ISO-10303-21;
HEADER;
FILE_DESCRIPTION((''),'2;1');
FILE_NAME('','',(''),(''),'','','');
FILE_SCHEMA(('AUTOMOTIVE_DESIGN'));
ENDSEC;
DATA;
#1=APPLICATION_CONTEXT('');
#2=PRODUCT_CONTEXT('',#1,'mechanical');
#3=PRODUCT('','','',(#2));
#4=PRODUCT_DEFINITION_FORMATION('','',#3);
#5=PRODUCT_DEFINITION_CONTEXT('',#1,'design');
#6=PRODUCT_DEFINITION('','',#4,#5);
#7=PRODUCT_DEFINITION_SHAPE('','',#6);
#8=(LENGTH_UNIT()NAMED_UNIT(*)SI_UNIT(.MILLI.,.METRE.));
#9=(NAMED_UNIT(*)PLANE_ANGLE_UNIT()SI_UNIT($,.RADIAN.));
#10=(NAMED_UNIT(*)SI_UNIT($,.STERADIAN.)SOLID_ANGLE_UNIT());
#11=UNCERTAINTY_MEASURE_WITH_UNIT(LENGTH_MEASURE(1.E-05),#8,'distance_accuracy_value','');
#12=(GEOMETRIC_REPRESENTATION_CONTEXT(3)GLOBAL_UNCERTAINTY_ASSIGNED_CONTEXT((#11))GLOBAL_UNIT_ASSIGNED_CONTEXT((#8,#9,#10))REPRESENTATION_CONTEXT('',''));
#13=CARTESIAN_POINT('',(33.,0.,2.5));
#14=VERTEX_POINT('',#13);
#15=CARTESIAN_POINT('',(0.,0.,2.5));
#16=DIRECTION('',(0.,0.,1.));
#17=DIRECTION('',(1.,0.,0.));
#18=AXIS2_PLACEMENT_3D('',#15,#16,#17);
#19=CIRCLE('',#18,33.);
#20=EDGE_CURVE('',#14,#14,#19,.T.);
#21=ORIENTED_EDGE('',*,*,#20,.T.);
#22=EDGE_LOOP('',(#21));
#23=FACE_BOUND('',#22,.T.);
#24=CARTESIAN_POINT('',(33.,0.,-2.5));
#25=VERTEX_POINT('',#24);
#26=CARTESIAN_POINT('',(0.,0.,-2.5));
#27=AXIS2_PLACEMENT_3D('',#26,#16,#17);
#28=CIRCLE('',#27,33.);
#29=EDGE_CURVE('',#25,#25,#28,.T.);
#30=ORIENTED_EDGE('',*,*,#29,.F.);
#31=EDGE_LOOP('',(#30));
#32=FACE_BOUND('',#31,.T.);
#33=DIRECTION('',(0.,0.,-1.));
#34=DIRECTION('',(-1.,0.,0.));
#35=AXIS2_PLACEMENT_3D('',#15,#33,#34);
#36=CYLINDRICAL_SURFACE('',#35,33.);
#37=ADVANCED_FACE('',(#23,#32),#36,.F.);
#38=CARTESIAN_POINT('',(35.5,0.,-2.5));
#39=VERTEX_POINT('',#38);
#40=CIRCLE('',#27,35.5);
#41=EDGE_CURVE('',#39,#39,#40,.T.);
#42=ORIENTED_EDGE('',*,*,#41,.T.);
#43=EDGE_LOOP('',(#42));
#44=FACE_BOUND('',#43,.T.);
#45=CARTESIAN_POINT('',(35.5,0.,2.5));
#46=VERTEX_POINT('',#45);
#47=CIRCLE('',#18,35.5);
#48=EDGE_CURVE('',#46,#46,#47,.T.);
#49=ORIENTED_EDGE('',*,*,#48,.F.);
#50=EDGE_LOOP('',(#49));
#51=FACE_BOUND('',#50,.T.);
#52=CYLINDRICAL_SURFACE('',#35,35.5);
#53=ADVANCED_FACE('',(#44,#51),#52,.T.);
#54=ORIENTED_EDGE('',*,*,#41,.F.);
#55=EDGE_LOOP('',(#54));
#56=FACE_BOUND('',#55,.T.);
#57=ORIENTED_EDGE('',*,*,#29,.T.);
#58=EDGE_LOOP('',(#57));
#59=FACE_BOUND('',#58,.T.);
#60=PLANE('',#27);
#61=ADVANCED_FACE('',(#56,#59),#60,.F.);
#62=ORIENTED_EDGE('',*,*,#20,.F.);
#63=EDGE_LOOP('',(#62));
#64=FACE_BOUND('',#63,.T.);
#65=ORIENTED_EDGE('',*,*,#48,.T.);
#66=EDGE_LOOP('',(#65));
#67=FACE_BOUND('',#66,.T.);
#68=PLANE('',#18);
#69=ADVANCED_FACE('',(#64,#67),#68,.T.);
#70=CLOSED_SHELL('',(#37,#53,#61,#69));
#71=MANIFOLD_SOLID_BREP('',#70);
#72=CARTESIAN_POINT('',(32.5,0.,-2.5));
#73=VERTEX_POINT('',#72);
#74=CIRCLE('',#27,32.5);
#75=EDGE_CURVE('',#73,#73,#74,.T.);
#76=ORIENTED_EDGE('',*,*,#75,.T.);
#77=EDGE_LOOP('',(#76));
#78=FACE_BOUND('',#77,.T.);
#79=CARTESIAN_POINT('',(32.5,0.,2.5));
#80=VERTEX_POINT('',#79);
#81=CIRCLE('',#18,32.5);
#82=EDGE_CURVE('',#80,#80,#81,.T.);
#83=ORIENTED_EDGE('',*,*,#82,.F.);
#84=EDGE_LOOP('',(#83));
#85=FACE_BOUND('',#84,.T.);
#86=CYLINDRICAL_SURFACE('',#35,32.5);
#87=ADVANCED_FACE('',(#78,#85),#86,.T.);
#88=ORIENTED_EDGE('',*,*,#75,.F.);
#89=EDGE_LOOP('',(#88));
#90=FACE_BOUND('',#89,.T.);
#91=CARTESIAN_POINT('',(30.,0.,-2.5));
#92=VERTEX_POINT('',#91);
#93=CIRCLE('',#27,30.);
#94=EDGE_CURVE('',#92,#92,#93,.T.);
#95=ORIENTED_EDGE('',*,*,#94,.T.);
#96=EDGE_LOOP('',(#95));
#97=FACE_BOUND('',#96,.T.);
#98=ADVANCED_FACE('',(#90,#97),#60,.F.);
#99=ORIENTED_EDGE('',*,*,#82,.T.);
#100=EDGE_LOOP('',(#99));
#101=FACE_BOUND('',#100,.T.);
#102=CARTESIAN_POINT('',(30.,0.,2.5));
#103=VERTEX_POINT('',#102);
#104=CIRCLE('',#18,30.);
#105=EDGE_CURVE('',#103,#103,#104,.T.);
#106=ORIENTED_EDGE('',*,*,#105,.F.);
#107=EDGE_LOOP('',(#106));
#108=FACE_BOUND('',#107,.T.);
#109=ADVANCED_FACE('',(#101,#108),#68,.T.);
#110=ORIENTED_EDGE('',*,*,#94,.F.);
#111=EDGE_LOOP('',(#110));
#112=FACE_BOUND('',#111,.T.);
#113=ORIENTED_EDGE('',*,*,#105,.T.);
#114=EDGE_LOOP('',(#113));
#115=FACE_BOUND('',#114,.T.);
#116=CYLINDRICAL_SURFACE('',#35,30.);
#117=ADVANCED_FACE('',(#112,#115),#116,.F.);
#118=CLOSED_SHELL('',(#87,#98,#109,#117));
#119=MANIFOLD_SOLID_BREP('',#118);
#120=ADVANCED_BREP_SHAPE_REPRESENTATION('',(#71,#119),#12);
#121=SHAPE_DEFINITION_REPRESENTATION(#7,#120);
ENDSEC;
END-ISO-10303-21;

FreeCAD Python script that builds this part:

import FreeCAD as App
import Part
import Sketcher
Q = App.Units.Quantity

doc = App.newDocument("Part")
body = doc.addObject("PartDesign::Body", "Body")

# Sketch on XY plane
sketch1 = doc.addObject("Sketcher::SketchObject", "Sketch")
body.addObject(sketch1)
sketch1.AttachmentSupport = (doc.XY_Plane, [""])
sketch1.MapMode = "FlatFace"
sketch1.addGeometry([
    Part.Circle(App.Vector(0, 0, 0), App.Vector(0, 0, 1), 32),
    Part.Circle(App.Vector(0, 0, 0), App.Vector(0, 0, 1), 30),
], False)
sketch1.addConstraint([
    Sketcher.Constraint("Coincident", 0, 3, -1, 1),
    Sketcher.Constraint("Coincident", 1, 3, -1, 1),
    Sketcher.Constraint("Diameter", 0, Q("65 mm")),
    Sketcher.Constraint("Diameter", 1, Q("60 mm")),
])
pad1 = doc.addObject("PartDesign::Pad", "Pad")
body.addObject(pad1)
pad1.Profile = sketch1
pad1.Length = 5
pad1.Midplane = True
body2 = doc.addObject("PartDesign::Body", "Body001")

# Sketch on XY plane
sketch2 = doc.addObject("Sketcher::SketchObject", "Sketch001")
body2.addObject(sketch2)
sketch2.AttachmentSupport = (doc.getObject("XY_Plane001"), [""])
sketch2.MapMode = "FlatFace"
sketch2.addGeometry([
    Part.Circle(App.Vector(0, 0, 0), App.Vector(0, 0, 1), 36),
    Part.Circle(App.Vector(0, 0, 0), App.Vector(0, 0, 1), 33),
], False)
sketch2.addConstraint([
    Sketcher.Constraint("Coincident", 0, 3, -1, 1),
    Sketcher.Constraint("Coincident", 1, 3, -1, 1),
    Sketcher.Constraint("Diameter", 0, Q("71 mm")),
    Sketcher.Constraint("Diameter", 1, Q("66 mm")),
])
pad2 = doc.addObject("PartDesign::Pad", "Pad001")
body2.addObject(pad2)
pad2.Profile = sketch2
pad2.Length = 5
pad2.Midplane = True

doc.recompute()
